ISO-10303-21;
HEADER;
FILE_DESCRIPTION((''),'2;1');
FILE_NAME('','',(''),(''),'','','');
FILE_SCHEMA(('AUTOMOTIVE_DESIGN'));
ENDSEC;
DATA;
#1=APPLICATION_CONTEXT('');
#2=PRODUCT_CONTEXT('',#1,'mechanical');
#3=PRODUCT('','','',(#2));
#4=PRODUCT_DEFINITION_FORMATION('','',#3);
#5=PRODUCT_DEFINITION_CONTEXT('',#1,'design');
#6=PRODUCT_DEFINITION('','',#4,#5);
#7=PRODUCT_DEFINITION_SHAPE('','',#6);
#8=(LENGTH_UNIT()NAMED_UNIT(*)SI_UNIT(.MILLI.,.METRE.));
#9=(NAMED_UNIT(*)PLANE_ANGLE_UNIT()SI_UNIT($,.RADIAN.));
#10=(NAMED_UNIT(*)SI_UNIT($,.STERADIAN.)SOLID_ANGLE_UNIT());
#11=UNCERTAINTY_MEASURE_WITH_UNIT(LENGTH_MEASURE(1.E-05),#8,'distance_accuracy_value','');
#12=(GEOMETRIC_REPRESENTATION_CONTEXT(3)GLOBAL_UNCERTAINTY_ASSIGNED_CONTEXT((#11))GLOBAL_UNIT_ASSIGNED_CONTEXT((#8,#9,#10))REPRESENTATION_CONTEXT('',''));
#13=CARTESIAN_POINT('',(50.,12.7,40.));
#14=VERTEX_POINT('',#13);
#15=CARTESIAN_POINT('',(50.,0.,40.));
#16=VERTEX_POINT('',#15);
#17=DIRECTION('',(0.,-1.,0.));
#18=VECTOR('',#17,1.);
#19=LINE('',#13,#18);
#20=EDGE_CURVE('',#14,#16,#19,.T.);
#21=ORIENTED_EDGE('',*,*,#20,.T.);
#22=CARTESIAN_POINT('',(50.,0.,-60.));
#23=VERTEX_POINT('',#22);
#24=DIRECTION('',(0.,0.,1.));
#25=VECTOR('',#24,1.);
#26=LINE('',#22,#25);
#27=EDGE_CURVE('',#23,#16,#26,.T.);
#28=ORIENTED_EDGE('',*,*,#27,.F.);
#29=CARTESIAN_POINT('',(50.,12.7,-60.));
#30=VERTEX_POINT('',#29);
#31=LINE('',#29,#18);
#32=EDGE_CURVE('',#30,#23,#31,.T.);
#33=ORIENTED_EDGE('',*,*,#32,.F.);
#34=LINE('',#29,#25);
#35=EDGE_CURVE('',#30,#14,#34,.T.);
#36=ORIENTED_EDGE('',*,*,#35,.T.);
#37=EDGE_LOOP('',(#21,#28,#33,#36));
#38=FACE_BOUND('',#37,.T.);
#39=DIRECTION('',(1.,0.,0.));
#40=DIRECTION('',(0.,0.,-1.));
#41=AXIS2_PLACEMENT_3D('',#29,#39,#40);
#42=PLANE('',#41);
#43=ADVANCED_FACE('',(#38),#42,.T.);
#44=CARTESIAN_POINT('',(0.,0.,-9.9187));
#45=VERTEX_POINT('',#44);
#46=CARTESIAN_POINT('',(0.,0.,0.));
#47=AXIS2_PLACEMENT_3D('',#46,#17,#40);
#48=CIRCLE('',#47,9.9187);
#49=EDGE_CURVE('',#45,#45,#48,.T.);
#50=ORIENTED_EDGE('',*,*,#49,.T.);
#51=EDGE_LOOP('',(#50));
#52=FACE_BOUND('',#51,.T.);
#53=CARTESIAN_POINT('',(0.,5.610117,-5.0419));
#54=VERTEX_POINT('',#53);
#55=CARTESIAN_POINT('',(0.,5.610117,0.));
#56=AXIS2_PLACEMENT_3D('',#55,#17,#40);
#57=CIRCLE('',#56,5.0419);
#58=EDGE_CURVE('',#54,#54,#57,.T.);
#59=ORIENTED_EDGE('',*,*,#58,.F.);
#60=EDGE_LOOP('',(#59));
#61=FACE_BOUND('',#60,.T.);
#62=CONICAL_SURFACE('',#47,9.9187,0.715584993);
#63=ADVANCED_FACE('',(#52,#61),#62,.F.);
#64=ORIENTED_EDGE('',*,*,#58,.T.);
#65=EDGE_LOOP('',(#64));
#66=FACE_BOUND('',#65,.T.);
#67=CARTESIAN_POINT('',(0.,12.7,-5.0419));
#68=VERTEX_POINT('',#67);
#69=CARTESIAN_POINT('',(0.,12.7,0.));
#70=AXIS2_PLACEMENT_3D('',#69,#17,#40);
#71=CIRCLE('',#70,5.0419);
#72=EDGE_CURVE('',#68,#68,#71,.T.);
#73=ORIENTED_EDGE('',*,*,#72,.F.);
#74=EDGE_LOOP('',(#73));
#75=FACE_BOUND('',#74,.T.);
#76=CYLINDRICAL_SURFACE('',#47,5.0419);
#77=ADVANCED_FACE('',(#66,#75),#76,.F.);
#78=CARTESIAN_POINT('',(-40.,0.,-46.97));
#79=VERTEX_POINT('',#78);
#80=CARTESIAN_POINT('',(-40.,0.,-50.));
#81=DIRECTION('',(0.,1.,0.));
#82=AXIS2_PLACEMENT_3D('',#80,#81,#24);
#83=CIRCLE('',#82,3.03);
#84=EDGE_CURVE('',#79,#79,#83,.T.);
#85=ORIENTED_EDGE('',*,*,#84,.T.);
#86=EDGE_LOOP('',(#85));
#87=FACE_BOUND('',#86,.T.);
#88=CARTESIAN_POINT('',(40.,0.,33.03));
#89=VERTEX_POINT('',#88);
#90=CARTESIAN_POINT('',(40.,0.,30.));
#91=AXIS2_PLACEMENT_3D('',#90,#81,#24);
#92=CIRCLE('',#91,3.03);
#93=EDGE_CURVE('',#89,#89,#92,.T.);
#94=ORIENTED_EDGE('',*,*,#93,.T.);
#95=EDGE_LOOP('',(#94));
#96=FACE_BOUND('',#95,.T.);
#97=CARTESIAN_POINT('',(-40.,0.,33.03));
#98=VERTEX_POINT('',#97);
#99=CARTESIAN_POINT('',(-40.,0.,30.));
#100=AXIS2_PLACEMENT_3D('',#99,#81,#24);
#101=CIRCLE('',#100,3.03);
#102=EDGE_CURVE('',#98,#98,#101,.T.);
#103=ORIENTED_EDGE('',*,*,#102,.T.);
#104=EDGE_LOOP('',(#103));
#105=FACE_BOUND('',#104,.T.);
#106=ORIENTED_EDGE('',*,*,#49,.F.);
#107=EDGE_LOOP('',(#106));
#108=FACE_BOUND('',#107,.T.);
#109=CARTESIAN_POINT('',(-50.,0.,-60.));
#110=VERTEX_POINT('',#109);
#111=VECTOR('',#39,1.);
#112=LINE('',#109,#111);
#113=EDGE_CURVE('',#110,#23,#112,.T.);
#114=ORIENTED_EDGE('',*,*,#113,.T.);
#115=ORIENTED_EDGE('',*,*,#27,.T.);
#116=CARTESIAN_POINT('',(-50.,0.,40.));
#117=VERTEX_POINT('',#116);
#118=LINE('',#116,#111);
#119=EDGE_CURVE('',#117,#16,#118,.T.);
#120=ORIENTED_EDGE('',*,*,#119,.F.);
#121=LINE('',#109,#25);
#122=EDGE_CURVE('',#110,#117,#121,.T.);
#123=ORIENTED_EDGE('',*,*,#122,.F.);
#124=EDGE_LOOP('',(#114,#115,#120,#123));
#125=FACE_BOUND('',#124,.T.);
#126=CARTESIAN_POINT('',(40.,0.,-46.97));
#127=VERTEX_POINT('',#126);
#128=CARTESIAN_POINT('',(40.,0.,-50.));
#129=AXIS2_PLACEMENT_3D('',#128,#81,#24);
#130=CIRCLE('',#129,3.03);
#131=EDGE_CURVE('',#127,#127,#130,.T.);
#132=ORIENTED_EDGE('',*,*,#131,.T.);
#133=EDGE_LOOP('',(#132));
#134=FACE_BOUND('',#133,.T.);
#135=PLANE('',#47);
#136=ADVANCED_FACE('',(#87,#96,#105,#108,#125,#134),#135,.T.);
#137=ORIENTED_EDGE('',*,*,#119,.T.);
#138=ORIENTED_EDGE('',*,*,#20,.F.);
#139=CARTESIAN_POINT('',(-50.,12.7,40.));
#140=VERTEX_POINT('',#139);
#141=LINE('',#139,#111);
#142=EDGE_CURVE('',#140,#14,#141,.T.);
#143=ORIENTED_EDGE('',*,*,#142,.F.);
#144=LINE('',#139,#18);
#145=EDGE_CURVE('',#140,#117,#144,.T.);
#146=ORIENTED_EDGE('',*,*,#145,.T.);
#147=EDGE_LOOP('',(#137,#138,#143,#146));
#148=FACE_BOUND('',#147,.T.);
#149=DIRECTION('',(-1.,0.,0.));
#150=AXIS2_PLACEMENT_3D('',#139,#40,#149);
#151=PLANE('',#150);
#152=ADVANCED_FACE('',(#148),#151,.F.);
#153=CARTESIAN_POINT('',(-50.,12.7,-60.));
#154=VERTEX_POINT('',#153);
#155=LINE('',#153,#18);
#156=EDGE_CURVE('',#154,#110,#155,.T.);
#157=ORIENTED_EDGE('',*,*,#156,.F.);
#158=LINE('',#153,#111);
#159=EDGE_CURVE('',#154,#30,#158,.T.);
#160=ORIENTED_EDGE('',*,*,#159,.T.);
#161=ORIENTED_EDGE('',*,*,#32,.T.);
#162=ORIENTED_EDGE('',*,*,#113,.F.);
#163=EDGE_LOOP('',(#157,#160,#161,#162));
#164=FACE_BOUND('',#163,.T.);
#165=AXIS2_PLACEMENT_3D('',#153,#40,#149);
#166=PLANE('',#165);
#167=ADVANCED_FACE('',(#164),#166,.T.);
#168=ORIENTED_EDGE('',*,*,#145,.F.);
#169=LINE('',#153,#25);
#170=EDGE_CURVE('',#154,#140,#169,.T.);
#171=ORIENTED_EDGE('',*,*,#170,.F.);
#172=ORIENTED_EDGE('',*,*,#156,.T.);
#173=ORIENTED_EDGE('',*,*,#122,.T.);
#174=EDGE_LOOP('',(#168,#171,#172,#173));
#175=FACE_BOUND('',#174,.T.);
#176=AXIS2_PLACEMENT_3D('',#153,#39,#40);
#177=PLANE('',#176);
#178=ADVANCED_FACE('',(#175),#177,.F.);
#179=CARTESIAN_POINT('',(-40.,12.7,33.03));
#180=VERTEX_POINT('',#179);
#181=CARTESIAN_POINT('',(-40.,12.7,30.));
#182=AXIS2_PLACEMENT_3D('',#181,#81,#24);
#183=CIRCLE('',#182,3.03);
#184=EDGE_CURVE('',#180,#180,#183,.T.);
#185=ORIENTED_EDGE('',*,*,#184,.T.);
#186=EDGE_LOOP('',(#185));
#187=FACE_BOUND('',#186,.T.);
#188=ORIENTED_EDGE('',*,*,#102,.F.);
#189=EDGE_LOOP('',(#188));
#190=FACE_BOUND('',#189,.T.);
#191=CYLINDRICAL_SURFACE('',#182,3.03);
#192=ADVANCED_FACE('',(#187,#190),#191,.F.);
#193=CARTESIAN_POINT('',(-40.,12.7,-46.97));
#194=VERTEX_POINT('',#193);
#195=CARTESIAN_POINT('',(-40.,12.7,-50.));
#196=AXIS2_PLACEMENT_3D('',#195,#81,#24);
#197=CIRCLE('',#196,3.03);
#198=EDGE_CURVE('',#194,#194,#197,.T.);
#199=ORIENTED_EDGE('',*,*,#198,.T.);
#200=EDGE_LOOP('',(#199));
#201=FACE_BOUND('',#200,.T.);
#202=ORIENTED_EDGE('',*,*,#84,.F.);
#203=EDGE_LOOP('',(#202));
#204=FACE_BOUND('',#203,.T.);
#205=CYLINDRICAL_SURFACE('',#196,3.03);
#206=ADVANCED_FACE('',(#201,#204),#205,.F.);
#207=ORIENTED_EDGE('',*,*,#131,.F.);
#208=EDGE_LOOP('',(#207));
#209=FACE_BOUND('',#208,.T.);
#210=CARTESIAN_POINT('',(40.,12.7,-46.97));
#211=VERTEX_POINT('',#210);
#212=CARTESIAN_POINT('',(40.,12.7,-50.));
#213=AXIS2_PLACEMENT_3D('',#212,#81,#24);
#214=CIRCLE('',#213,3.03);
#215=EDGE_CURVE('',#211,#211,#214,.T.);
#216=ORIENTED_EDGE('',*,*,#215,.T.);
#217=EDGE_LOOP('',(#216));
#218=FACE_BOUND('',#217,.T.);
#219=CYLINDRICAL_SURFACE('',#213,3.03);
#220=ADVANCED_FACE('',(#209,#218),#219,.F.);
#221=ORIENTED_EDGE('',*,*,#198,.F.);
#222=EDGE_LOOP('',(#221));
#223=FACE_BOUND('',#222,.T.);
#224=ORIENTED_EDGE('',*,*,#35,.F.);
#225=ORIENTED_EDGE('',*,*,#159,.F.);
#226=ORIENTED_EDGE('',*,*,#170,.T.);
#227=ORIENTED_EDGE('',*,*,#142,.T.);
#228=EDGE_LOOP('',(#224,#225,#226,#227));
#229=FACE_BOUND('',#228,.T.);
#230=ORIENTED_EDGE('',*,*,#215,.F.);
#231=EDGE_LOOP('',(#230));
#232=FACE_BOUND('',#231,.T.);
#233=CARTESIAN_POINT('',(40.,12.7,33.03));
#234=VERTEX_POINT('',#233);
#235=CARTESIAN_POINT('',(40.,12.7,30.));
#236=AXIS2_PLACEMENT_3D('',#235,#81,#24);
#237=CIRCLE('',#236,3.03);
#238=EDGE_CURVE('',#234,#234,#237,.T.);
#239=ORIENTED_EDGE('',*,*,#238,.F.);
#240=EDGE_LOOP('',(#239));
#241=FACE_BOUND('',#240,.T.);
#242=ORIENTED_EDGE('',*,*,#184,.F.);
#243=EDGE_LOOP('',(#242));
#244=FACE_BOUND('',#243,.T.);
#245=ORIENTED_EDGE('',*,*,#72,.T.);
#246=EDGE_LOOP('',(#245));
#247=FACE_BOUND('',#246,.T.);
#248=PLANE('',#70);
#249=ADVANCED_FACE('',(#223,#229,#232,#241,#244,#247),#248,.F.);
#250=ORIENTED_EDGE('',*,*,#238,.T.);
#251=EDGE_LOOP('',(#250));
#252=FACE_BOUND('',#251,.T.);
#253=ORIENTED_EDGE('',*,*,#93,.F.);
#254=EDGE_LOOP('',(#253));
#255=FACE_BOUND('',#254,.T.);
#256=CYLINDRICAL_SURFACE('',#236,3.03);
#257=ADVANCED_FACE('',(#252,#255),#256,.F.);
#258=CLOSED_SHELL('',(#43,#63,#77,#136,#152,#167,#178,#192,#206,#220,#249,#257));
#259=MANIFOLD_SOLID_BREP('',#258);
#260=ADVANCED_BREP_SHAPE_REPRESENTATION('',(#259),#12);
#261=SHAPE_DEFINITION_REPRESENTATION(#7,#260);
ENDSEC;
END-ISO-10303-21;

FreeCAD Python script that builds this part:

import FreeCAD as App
import Part
import Sketcher
from FreeCAD import Vector
Q = App.Units.Quantity

doc = App.newDocument("Part")
params = doc.addObject("Spreadsheet::Sheet", "Params")
for row, (alias, value) in enumerate([
    ("pad1_length", "0.5 in"),
    ("hole_diameter", "6.06 mm"),
    ("sketch3_diameter", "0.397 in"),
    ("hole2_diameter", "0.397 in"),
    ("hole2_csink_diameter", "0.781 in"),
], start=1):
    params.set(f"A{row}", alias)
    params.set(f"B{row}", "=" + value)
    params.setAlias(f"B{row}", alias)

body = doc.addObject("PartDesign::Body", "Body")

sketch1 = body.newObject("Sketcher::SketchObject", "Sketch")
sketch1.AttachmentSupport = (doc.getObject("XZ_Plane"), [""])
sketch1.MapMode = "FlatFace"
sketch1.addGeometry([
    Part.LineSegment(Vector(-50, -60, 0), Vector(-50, 40, 0)),
    Part.LineSegment(Vector(-50, 40, 0), Vector(50, 40, 0)),
    Part.LineSegment(Vector(50, 40, 0), Vector(50, -60, 0)),
    Part.LineSegment(Vector(50, -60, 0), Vector(-50, -60, 0)),
], False)
sketch1.addConstraint([
    Sketcher.Constraint("Coincident", 0, 2, 1, 1),
    Sketcher.Constraint("Coincident", 1, 2, 2, 1),
    Sketcher.Constraint("Coincident", 2, 2, 3, 1),
    Sketcher.Constraint("Coincident", 3, 2, 0, 1),
    Sketcher.Constraint("Vertical", 0),
    Sketcher.Constraint("Horizontal", 1),
    Sketcher.Constraint("Vertical", 2),
    Sketcher.Constraint("Horizontal", 3),
    Sketcher.Constraint("Equal", 3, 0),
    Sketcher.Constraint("DistanceX", 1, 1, 1, 2, Q("100 mm")),
    Sketcher.Constraint("DistanceX", 0, 2, -1, 1, Q("50 mm")),
    Sketcher.Constraint("DistanceY", -1, 1, 0, 2, Q("40 mm")),
])
pad1 = body.newObject("PartDesign::Pad", "Pad")
pad1.Profile = sketch1
pad1.setExpression("Length", "Params.pad1_length")
pad1.Reversed = True

sketch2 = body.newObject("Sketcher::SketchObject", "Sketch001")
sketch2.AttachmentSupport = (doc.getObject("XZ_Plane"), [""])
sketch2.MapMode = "FlatFace"
sketch2.AttachmentOffset = App.Placement(Vector(0, 0, -0.5 * 25.4), App.Rotation())
sketch2.addGeometry([
    Part.Circle(Vector(-40, -50, 0), Vector(0, 0, 1), 3.03),
    Part.Circle(Vector(40, -50, 0), Vector(0, 0, 1), 3.03),
    Part.Circle(Vector(40, 30, 0), Vector(0, 0, 1), 3.03),
    Part.Circle(Vector(-40, 30, 0), Vector(0, 0, 1), 3.03),
], False)
sketch2.addConstraint([
    Sketcher.Constraint("Equal", 0, 1),
    Sketcher.Constraint("Equal", 1, 2),
    Sketcher.Constraint("Equal", 2, 3),
    Sketcher.Constraint("Symmetric", 0, 3, 1, 3, -2),
    Sketcher.Constraint("Symmetric", 2, 3, 3, 3, -2),
    Sketcher.Constraint("Vertical", 1, 3, 2, 3),
    Sketcher.Constraint("Diameter", 0, Q("6.06 mm")),
    Sketcher.Constraint("DistanceX", 0, 3, -1, 1, Q("40 mm")),
    Sketcher.Constraint("DistanceY", 0, 3, -1, 1, Q("50 mm")),
    Sketcher.Constraint("DistanceY", -1, 1, 2, 3, Q("30 mm")),
])
doc.recompute()
hole = body.newObject("PartDesign::Hole", "Hole")
hole.Profile = sketch2
hole.ThreadType = "None"
hole.setExpression("Diameter", "Params.hole_diameter")
hole.DepthType = "ThroughAll"
hole.Reversed = True

sketch3 = body.newObject("Sketcher::SketchObject", "Sketch002")
sketch3.AttachmentSupport = (doc.getObject("XZ_Plane"), [""])
sketch3.MapMode = "FlatFace"
sketch3.addGeometry(Part.Circle(Vector(0, 0, 0), Vector(0, 0, 1), 5.0419), False)
sketch3.addConstraint([
    Sketcher.Constraint("Coincident", 0, 3, -1, 1),
    Sketcher.Constraint("Diameter", 0, Q("0.397 in")),
])
sketch3.setExpression("Constraints[1]", "Params.sketch3_diameter")
doc.recompute()
hole2 = body.newObject("PartDesign::Hole", "Hole001")
hole2.Profile = sketch3
hole2.ThreadType = "None"
hole2.setExpression("Diameter", "Params.hole2_diameter")
hole2.DepthType = "ThroughAll"
hole2.HoleCutType = "Countersink"
hole2.setExpression("HoleCutDiameter", "Params.hole2_csink_diameter")
hole2.HoleCutCountersinkAngle = 82

doc.recompute()
